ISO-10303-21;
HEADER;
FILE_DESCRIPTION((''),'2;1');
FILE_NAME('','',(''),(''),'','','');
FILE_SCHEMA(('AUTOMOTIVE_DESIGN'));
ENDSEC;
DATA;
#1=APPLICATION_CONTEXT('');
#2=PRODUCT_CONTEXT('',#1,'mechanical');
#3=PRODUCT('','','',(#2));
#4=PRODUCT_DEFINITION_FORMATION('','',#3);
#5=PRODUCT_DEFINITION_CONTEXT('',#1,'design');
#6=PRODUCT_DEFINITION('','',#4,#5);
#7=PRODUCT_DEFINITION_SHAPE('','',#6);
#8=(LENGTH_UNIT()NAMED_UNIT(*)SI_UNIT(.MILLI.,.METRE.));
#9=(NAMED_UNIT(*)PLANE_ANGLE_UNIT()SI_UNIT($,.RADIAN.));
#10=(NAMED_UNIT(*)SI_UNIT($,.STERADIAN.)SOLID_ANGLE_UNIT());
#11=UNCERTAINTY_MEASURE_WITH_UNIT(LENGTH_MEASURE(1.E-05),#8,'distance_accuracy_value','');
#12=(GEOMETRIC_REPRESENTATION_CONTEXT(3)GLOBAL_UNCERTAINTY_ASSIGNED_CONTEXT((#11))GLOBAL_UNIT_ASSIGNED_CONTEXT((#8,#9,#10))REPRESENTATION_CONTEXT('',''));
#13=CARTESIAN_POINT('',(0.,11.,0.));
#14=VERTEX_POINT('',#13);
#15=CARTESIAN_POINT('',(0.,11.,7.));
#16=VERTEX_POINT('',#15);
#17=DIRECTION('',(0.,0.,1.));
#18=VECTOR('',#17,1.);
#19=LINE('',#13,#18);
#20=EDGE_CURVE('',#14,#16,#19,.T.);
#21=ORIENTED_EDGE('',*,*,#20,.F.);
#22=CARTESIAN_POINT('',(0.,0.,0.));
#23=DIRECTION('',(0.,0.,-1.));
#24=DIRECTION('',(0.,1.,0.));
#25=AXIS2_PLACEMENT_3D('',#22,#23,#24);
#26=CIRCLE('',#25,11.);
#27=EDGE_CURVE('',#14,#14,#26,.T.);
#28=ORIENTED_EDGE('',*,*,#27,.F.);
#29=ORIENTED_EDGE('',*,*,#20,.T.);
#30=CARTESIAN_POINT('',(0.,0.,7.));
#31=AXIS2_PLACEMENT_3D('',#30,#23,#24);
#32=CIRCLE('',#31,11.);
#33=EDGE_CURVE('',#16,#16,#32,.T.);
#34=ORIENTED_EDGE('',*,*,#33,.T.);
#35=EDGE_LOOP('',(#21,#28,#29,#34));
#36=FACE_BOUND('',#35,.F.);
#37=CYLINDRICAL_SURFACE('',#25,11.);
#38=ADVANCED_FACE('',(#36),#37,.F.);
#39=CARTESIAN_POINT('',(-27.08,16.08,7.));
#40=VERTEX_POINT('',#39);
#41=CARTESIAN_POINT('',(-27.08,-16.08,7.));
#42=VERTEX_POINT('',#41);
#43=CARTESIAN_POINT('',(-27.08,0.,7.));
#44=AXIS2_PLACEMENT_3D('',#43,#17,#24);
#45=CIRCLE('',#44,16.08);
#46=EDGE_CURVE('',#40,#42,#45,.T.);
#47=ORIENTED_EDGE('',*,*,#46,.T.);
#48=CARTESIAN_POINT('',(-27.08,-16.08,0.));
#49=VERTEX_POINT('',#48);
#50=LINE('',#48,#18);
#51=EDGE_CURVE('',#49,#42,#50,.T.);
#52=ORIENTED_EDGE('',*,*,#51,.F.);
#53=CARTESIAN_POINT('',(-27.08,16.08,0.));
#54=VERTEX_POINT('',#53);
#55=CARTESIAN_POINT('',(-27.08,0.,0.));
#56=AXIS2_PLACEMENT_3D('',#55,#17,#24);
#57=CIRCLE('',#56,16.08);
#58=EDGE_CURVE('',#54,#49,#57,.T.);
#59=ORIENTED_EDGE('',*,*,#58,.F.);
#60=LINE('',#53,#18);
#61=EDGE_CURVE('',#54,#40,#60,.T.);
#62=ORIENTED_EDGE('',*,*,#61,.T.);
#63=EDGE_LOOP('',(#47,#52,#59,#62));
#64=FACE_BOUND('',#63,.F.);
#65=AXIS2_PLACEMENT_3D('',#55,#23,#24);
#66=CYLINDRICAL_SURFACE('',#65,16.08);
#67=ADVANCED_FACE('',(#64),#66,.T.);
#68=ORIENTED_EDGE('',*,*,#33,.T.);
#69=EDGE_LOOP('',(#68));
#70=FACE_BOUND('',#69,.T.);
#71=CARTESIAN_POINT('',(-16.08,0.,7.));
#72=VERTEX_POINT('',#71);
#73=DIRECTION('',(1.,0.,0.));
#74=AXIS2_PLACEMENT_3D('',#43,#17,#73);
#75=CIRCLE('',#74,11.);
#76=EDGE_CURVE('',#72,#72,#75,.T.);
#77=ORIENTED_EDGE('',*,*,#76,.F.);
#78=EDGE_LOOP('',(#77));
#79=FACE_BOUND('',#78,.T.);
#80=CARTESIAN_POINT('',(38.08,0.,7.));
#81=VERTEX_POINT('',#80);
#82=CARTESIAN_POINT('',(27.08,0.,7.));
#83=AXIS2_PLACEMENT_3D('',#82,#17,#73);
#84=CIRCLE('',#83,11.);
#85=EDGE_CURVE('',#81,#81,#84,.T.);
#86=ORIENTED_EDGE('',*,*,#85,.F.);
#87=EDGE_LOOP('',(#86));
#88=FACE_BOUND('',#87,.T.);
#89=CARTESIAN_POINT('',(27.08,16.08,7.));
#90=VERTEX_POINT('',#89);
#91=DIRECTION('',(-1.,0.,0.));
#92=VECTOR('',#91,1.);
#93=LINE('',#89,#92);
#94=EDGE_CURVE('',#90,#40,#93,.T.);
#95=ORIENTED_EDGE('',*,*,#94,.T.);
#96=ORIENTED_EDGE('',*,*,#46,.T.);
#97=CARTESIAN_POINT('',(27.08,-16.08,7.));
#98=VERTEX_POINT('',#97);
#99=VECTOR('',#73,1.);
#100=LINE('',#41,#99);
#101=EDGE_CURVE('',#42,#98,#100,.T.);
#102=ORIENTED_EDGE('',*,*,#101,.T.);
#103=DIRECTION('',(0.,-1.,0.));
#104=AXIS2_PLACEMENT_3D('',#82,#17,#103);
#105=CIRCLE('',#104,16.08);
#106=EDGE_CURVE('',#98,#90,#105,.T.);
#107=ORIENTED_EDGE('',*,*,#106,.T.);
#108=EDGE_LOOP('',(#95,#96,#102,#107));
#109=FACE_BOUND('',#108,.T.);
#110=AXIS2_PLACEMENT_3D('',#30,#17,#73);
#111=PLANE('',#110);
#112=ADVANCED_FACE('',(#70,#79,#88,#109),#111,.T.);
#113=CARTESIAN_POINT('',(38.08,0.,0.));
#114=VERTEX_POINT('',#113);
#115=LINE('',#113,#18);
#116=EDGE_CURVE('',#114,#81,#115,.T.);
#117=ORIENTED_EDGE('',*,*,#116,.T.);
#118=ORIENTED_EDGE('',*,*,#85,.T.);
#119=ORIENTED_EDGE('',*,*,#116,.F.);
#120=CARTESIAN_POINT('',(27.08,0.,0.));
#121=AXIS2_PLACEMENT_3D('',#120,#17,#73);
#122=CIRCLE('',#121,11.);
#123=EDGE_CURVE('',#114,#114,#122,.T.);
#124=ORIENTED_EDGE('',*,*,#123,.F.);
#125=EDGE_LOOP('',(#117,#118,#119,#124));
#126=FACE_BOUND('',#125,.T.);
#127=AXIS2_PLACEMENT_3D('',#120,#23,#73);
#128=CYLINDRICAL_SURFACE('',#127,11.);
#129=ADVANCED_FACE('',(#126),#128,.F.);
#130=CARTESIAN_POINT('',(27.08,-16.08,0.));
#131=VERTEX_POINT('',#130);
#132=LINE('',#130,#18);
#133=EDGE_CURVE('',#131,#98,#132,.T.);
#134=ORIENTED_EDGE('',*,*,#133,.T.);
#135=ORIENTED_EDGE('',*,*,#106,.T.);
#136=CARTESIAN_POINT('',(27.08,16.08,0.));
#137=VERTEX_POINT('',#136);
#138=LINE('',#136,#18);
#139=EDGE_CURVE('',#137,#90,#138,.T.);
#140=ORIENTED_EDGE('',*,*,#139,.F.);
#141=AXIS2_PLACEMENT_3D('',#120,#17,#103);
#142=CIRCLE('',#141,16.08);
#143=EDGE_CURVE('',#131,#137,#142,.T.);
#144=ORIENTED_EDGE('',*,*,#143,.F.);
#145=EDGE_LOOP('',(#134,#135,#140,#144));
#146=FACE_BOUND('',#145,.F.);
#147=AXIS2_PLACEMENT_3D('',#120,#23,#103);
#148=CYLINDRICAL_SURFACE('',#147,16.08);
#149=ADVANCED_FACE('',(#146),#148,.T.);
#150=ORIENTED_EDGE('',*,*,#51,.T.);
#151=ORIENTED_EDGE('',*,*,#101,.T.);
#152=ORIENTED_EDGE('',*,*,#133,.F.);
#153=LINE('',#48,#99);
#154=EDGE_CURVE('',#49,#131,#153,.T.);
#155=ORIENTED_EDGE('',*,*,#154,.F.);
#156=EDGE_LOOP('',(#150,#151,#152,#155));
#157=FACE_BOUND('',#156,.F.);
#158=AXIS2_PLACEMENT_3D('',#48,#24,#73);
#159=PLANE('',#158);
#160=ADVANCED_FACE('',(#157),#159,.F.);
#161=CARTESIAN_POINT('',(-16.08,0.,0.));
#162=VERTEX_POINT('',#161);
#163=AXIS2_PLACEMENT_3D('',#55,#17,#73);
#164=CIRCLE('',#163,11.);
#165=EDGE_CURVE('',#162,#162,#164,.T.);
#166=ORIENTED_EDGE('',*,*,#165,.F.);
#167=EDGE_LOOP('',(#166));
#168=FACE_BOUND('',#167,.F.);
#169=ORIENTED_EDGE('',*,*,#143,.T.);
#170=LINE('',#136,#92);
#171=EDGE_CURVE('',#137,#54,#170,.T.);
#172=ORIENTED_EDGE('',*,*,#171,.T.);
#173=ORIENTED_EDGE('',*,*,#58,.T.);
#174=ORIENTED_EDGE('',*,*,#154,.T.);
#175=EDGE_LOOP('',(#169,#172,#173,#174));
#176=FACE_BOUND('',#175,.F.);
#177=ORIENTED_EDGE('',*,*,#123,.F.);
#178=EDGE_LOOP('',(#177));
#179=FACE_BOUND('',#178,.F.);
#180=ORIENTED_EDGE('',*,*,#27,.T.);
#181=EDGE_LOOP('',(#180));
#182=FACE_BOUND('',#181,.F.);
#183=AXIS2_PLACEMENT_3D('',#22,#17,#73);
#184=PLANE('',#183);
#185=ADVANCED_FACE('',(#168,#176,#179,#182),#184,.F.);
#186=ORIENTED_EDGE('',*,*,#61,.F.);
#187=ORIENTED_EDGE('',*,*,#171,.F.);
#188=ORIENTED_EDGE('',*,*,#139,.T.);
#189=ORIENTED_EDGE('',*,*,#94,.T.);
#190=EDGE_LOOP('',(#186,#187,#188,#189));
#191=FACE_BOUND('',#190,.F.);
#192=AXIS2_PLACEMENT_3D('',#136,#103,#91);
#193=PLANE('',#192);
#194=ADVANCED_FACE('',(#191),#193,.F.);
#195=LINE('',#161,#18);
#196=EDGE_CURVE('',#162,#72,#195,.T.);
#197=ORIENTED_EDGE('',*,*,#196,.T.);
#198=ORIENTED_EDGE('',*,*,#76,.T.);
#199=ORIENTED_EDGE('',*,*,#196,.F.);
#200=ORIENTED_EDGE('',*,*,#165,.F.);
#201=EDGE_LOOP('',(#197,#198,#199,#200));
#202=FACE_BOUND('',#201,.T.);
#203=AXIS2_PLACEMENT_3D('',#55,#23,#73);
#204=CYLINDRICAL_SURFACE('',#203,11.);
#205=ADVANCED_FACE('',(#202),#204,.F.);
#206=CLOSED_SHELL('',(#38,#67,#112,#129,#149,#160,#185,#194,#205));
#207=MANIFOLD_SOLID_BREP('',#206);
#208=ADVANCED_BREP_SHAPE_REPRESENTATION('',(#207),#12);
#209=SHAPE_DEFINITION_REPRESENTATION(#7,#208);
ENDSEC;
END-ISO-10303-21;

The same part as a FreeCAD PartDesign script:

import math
import FreeCAD as App
import Part
import Sketcher

doc = App.newDocument("Part")
body = doc.addObject("PartDesign::Body", "Body")

sketch1 = body.newObject("Sketcher::SketchObject", "Sketch")
sketch1.AttachmentSupport = (doc.getObject("XY_Plane"), [""])
sketch1.MapMode = "FlatFace"
sketch1.addGeometry(Part.ArcOfCircle(Part.Circle(App.Vector(-27.08, 0, 0), App.Vector(0, 0, 1), 16.08), math.radians(90), math.radians(270)), False)
sketch1.addGeometry(Part.LineSegment(App.Vector(-27.08, -16.08, 0), App.Vector(27.08, -16.08, 0)), False)
sketch1.addGeometry(Part.ArcOfCircle(Part.Circle(App.Vector(27.08, 0, 0), App.Vector(0, 0, 1), 16.08), math.radians(-90), math.radians(90)), False)
sketch1.addGeometry(Part.LineSegment(App.Vector(27.08, 16.08, 0), App.Vector(-27.08, 16.08, 0)), False)
sketch1.addGeometry(Part.Circle(App.Vector(-27.08, 0, 0), App.Vector(0, 0, 1), 11), False)
sketch1.addGeometry(Part.Circle(App.Vector(0, 0, 0), App.Vector(0, 0, 1), 11), False)
sketch1.addGeometry(Part.Circle(App.Vector(27.08, 0, 0), App.Vector(0, 0, 1), 11), False)
sketch1.addConstraint(Sketcher.Constraint("Tangent", 0, 2, 1, 1))
sketch1.addConstraint(Sketcher.Constraint("Tangent", 1, 2, 2, 1))
sketch1.addConstraint(Sketcher.Constraint("Tangent", 2, 2, 3, 1))
sketch1.addConstraint(Sketcher.Constraint("Tangent", 3, 2, 0, 1))
sketch1.addConstraint(Sketcher.Constraint("Horizontal", 1))
sketch1.addConstraint(Sketcher.Constraint("Horizontal", 3))
sketch1.addConstraint(Sketcher.Constraint("Coincident", 5, 3, -1, 1))
sketch1.addConstraint(Sketcher.Constraint("Coincident", 4, 3, 0, 3))
sketch1.addConstraint(Sketcher.Constraint("Coincident", 6, 3, 2, 3))
sketch1.addConstraint(Sketcher.Constraint("Equal", 4, 5))
sketch1.addConstraint(Sketcher.Constraint("Equal", 5, 6))
sketch1.addConstraint(Sketcher.Constraint("Symmetric", 0, 3, 2, 3, -1, 1))
sketch1.addConstraint(Sketcher.Constraint("Diameter", 4, 22.0))
sketch1.addConstraint(Sketcher.Constraint("Radius", 0, 16.08))
sketch1.addConstraint(Sketcher.Constraint("DistanceX", 1, 1, 1, 2, 54.16))
pad1 = body.newObject("PartDesign::Pad", "Pad")
pad1.Profile = sketch1
pad1.Length = 7

doc.recompute()
